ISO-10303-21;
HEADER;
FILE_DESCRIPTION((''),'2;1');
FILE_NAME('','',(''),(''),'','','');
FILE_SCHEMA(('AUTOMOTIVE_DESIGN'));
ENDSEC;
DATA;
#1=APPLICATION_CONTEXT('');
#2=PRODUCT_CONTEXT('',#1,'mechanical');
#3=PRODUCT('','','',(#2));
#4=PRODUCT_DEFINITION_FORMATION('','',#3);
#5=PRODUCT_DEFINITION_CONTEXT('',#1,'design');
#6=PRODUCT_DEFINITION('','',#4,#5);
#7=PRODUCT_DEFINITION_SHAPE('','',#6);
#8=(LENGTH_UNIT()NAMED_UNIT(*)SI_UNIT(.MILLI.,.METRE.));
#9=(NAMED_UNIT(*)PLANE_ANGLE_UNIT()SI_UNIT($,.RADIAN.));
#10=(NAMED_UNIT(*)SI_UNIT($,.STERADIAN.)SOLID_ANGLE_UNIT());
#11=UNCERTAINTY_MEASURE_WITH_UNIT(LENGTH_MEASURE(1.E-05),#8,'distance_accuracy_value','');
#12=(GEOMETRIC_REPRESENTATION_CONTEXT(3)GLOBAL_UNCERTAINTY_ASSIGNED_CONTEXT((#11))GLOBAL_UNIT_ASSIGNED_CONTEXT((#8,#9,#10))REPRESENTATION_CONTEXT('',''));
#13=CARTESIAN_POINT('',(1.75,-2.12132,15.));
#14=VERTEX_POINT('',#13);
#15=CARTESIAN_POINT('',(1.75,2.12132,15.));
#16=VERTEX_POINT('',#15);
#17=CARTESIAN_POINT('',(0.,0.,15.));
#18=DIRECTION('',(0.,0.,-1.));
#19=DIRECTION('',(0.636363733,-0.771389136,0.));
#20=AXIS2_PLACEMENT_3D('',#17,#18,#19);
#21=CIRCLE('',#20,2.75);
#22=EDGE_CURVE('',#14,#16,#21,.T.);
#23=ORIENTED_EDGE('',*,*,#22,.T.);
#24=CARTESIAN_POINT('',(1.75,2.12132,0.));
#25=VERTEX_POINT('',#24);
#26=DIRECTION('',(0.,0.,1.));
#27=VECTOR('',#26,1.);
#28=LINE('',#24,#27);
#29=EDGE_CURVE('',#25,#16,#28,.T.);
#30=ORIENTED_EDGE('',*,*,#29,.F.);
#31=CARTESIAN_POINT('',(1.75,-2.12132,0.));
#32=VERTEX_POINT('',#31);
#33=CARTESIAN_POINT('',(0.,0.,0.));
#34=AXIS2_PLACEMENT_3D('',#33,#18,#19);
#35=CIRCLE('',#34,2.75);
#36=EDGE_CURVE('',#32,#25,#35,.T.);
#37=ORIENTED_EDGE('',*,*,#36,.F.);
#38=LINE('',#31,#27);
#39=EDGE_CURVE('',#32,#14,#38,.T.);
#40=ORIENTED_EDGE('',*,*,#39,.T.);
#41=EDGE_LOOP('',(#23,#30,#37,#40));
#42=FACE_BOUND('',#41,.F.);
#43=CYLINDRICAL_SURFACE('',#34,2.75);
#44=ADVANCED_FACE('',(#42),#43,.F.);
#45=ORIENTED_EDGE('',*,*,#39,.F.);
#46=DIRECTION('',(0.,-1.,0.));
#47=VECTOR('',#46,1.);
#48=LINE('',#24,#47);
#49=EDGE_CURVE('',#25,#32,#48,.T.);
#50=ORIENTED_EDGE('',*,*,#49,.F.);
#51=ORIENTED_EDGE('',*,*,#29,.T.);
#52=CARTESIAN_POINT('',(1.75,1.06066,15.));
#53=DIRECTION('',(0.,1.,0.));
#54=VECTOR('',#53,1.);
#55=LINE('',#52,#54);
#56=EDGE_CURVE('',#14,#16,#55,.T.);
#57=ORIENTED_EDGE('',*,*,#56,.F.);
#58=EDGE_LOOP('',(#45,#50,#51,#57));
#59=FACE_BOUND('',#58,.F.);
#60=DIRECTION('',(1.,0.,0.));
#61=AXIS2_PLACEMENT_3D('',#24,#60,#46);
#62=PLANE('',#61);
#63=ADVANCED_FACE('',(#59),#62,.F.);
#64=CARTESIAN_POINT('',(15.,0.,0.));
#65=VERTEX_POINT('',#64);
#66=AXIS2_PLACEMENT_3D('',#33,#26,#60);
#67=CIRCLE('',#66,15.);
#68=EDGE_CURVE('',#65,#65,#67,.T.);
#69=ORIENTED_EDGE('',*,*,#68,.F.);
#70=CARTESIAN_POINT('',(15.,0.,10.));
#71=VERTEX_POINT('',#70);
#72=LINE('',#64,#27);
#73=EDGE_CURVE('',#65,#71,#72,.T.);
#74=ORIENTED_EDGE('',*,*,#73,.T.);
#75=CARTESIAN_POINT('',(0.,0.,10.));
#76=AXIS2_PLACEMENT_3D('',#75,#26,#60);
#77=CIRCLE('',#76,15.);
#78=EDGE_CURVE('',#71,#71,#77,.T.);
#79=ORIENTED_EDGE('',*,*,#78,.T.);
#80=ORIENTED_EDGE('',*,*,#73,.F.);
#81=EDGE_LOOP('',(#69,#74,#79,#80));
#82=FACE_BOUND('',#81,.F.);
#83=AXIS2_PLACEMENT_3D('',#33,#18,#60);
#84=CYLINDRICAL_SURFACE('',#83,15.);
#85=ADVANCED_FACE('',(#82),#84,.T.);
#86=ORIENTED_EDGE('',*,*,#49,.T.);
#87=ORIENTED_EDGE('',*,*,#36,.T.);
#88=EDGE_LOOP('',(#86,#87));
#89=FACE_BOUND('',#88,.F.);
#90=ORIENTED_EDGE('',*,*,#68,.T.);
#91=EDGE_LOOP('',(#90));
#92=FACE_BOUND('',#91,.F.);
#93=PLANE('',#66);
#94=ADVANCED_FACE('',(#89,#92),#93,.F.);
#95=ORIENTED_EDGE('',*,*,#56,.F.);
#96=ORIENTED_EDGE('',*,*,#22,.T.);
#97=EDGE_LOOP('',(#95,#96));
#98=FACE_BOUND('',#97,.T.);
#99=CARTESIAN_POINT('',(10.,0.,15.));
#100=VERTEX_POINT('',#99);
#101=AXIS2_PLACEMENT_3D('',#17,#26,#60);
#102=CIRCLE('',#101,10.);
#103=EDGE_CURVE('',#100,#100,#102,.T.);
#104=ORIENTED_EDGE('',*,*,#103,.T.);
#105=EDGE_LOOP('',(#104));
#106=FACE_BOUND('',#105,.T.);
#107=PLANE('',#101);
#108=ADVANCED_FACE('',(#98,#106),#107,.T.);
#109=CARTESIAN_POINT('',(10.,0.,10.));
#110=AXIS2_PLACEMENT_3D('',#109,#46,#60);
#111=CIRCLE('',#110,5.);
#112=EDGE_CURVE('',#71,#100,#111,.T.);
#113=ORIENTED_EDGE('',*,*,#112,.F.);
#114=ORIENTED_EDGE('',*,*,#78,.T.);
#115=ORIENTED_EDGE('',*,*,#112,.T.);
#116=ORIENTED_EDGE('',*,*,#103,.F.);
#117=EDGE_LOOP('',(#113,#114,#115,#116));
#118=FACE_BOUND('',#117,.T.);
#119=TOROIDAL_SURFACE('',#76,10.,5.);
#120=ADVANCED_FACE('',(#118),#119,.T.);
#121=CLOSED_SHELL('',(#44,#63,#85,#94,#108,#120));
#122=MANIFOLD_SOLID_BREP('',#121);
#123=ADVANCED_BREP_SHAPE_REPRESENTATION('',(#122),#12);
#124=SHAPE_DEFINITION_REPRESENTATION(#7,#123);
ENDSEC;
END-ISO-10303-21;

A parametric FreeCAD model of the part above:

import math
import FreeCAD as App
import Part
import Sketcher
from FreeCAD import Vector


def edges_at(feature, points):
    """Names of the edges that pass closest to the given points."""
    edges = feature.Shape.Edges
    near = lambda p: min(range(len(edges)), key=lambda i: edges[i].distToShape(Part.Vertex(*p))[0])
    return sorted({f"Edge{near(p) + 1}" for p in points})

doc = App.newDocument("Part")
body = doc.addObject("PartDesign::Body", "Body")

# Sketch on XY plane
sketch1 = doc.addObject("Sketcher::SketchObject", "Sketch")
body.addObject(sketch1)
sketch1.AttachmentSupport = (doc.XY_Plane, [""])
sketch1.MapMode = "FlatFace"
sketch1.addGeometry(Part.Circle(Vector(0, 0, 0), Vector(0, 0, 1), 15), False)
sketch1.addConstraint([
    Sketcher.Constraint("Coincident", 0, 3, -1, 1),
    Sketcher.Constraint("Diameter", 0, 30.0),
])
pad1 = doc.addObject("PartDesign::Pad", "Pad")
body.addObject(pad1)
pad1.Profile = sketch1
pad1.Length = 15

# Sketch on XY plane
sketch2 = doc.addObject("Sketcher::SketchObject", "Sketch001")
body.addObject(sketch2)
sketch2.AttachmentSupport = (doc.XY_Plane, [""])
sketch2.MapMode = "FlatFace"
sketch2.addGeometry([
    Part.LineSegment(Vector(1.75, 2.12132, 0), Vector(1.75, -2.12132, 0)),
    Part.ArcOfCircle(Part.Circle(Vector(0, 0, 0), Vector(0, 0, 1), 2.75), math.radians(50.478796), math.radians(309.521204)),
], False)
sketch2.addConstraint([
    Sketcher.Constraint("Coincident", 0, 1, 1, 1),
    Sketcher.Constraint("Coincident", 1, 2, 0, 2),
    Sketcher.Constraint("Vertical", 0),
    Sketcher.Constraint("Coincident", 1, 3, -1, 1),
    Sketcher.Constraint("Radius", 1, 2.75),
    Sketcher.Constraint("DistanceX", -1, 1, 0, 1, 1.75),
])
pocket1 = doc.addObject("PartDesign::Pocket", "Pocket")
body.addObject(pocket1)
pocket1.Profile = sketch2
pocket1.Length = 25
pocket1.Reversed = True
doc.recompute()

fillet = doc.addObject("PartDesign::Fillet", "Fillet")
body.addObject(fillet)
fillet.Base = (pocket1, edges_at(pocket1, [(-15, 0, 15)]))
fillet.Radius = 5

doc.recompute()
